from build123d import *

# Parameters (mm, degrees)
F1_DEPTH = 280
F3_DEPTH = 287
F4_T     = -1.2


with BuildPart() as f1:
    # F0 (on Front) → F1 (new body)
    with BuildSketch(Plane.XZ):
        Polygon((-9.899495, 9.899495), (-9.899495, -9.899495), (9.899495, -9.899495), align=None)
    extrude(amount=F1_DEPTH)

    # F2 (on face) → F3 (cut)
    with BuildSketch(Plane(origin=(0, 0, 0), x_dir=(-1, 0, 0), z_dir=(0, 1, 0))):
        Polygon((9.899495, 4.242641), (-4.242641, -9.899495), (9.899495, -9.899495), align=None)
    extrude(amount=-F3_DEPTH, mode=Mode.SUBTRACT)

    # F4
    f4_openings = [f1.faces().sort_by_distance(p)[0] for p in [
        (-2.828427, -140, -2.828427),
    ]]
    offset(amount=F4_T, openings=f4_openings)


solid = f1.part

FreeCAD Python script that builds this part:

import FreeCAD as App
import Part
import Sketcher

V = App.Vector


def faces_at(feature, points):
    """Names of the faces that lie closest to the given points."""
    faces = feature.Shape.Faces
    near = lambda p: min(range(len(faces)), key=lambda i: faces[i].distToShape(Part.Vertex(*p))[0])
    return sorted({f"Face{near(p) + 1}" for p in points})

doc = App.newDocument("Part")
params = doc.addObject("Spreadsheet::Sheet", "Params")
for row, (alias, value) in enumerate([
    ("sketch1_length", "28 mm"),
    ("pad1_length", "280 mm"),
    ("sketch2_length", "20.000001 mm"),
    ("pocket1_length", "287 mm"),
    ("thickness_wall", "1.2 mm"),
], start=1):
    params.set(f"A{row}", alias)
    params.set(f"B{row}", "=" + value)
    params.setAlias(f"B{row}", alias)

body = doc.addObject("PartDesign::Body", "Body")

# Sketch on XZ plane
sketch1 = doc.addObject("Sketcher::SketchObject", "Sketch")
body.addObject(sketch1)
sketch1.AttachmentSupport = (doc.XZ_Plane, [""])
sketch1.MapMode = "FlatFace"
sketch1.addGeometry([
    Part.LineSegment(V(-10, 10, 0), V(-10, -10, 0)),
    Part.LineSegment(V(-10, -10, 0), V(10, -10, 0)),
    Part.LineSegment(V(10, -10, 0), V(-10, 10, 0)),
], False)
sketch1.addConstraint([
    Sketcher.Constraint("Coincident", 0, 2, 1, 1),
    Sketcher.Constraint("Coincident", 1, 2, 2, 1),
    Sketcher.Constraint("Coincident", 2, 2, 0, 1),
    Sketcher.Constraint("Vertical", 0),
    Sketcher.Constraint("Horizontal", 1),
    Sketcher.Constraint("Symmetric", 1, 2, 2, 2, -1, 1),
    Sketcher.Constraint("Equal", 1, 0),
    Sketcher.Constraint("Distance", 2, 28.0),
])
sketch1.setExpression("Constraints[7]", "Params.sketch1_length")
pad1 = doc.addObject("PartDesign::Pad", "Pad")
body.addObject(pad1)
pad1.Profile = sketch1
pad1.setExpression("Length", "Params.pad1_length")

# Sketch on XZ plane
sketch2 = doc.addObject("Sketcher::SketchObject", "Sketch001")
body.addObject(sketch2)
sketch2.AttachmentSupport = (doc.XZ_Plane, [""])
sketch2.MapMode = "FlatFace"
sketch2.addGeometry([
    Part.LineSegment(V(-10, 4, 0), V(4, -10, 0)),
    Part.LineSegment(V(4, -10, 0), V(-10, -10, 0)),
    Part.LineSegment(V(-10, -10, 0), V(-10, 4, 0)),
], False)
sketch2.addConstraint([
    Sketcher.Constraint("Coincident", 0, 2, 1, 1),
    Sketcher.Constraint("Coincident", 1, 2, 2, 1),
    Sketcher.Constraint("Coincident", 2, 2, 0, 1),
    Sketcher.Constraint("Horizontal", 1),
    Sketcher.Constraint("Vertical", 2),
    Sketcher.Constraint("Equal", 1, 2),
    Sketcher.Constraint("Distance", 0, 20.000001),
    Sketcher.Constraint("DistanceX", -1, 1, 0, 2, 4.242641),
    Sketcher.Constraint("DistanceY", -1, 1, 2, 2, 4.242641),
])
sketch2.setExpression("Constraints[6]", "Params.sketch2_length")
pocket1 = doc.addObject("PartDesign::Pocket", "Pocket")
body.addObject(pocket1)
pocket1.Profile = sketch2
pocket1.setExpression("Length", "Params.pocket1_length")
pocket1.Reversed = True
doc.recompute()

thickness = doc.addObject("PartDesign::Thickness", "Thickness")
body.addObject(thickness)
thickness.Base = (pocket1, faces_at(pocket1, [(-2.828, -140, -2.828)]))
thickness.setExpression("Value", "Params.thickness_wall")
thickness.Reversed = True
thickness.Join = "Arc"

doc.recompute()
